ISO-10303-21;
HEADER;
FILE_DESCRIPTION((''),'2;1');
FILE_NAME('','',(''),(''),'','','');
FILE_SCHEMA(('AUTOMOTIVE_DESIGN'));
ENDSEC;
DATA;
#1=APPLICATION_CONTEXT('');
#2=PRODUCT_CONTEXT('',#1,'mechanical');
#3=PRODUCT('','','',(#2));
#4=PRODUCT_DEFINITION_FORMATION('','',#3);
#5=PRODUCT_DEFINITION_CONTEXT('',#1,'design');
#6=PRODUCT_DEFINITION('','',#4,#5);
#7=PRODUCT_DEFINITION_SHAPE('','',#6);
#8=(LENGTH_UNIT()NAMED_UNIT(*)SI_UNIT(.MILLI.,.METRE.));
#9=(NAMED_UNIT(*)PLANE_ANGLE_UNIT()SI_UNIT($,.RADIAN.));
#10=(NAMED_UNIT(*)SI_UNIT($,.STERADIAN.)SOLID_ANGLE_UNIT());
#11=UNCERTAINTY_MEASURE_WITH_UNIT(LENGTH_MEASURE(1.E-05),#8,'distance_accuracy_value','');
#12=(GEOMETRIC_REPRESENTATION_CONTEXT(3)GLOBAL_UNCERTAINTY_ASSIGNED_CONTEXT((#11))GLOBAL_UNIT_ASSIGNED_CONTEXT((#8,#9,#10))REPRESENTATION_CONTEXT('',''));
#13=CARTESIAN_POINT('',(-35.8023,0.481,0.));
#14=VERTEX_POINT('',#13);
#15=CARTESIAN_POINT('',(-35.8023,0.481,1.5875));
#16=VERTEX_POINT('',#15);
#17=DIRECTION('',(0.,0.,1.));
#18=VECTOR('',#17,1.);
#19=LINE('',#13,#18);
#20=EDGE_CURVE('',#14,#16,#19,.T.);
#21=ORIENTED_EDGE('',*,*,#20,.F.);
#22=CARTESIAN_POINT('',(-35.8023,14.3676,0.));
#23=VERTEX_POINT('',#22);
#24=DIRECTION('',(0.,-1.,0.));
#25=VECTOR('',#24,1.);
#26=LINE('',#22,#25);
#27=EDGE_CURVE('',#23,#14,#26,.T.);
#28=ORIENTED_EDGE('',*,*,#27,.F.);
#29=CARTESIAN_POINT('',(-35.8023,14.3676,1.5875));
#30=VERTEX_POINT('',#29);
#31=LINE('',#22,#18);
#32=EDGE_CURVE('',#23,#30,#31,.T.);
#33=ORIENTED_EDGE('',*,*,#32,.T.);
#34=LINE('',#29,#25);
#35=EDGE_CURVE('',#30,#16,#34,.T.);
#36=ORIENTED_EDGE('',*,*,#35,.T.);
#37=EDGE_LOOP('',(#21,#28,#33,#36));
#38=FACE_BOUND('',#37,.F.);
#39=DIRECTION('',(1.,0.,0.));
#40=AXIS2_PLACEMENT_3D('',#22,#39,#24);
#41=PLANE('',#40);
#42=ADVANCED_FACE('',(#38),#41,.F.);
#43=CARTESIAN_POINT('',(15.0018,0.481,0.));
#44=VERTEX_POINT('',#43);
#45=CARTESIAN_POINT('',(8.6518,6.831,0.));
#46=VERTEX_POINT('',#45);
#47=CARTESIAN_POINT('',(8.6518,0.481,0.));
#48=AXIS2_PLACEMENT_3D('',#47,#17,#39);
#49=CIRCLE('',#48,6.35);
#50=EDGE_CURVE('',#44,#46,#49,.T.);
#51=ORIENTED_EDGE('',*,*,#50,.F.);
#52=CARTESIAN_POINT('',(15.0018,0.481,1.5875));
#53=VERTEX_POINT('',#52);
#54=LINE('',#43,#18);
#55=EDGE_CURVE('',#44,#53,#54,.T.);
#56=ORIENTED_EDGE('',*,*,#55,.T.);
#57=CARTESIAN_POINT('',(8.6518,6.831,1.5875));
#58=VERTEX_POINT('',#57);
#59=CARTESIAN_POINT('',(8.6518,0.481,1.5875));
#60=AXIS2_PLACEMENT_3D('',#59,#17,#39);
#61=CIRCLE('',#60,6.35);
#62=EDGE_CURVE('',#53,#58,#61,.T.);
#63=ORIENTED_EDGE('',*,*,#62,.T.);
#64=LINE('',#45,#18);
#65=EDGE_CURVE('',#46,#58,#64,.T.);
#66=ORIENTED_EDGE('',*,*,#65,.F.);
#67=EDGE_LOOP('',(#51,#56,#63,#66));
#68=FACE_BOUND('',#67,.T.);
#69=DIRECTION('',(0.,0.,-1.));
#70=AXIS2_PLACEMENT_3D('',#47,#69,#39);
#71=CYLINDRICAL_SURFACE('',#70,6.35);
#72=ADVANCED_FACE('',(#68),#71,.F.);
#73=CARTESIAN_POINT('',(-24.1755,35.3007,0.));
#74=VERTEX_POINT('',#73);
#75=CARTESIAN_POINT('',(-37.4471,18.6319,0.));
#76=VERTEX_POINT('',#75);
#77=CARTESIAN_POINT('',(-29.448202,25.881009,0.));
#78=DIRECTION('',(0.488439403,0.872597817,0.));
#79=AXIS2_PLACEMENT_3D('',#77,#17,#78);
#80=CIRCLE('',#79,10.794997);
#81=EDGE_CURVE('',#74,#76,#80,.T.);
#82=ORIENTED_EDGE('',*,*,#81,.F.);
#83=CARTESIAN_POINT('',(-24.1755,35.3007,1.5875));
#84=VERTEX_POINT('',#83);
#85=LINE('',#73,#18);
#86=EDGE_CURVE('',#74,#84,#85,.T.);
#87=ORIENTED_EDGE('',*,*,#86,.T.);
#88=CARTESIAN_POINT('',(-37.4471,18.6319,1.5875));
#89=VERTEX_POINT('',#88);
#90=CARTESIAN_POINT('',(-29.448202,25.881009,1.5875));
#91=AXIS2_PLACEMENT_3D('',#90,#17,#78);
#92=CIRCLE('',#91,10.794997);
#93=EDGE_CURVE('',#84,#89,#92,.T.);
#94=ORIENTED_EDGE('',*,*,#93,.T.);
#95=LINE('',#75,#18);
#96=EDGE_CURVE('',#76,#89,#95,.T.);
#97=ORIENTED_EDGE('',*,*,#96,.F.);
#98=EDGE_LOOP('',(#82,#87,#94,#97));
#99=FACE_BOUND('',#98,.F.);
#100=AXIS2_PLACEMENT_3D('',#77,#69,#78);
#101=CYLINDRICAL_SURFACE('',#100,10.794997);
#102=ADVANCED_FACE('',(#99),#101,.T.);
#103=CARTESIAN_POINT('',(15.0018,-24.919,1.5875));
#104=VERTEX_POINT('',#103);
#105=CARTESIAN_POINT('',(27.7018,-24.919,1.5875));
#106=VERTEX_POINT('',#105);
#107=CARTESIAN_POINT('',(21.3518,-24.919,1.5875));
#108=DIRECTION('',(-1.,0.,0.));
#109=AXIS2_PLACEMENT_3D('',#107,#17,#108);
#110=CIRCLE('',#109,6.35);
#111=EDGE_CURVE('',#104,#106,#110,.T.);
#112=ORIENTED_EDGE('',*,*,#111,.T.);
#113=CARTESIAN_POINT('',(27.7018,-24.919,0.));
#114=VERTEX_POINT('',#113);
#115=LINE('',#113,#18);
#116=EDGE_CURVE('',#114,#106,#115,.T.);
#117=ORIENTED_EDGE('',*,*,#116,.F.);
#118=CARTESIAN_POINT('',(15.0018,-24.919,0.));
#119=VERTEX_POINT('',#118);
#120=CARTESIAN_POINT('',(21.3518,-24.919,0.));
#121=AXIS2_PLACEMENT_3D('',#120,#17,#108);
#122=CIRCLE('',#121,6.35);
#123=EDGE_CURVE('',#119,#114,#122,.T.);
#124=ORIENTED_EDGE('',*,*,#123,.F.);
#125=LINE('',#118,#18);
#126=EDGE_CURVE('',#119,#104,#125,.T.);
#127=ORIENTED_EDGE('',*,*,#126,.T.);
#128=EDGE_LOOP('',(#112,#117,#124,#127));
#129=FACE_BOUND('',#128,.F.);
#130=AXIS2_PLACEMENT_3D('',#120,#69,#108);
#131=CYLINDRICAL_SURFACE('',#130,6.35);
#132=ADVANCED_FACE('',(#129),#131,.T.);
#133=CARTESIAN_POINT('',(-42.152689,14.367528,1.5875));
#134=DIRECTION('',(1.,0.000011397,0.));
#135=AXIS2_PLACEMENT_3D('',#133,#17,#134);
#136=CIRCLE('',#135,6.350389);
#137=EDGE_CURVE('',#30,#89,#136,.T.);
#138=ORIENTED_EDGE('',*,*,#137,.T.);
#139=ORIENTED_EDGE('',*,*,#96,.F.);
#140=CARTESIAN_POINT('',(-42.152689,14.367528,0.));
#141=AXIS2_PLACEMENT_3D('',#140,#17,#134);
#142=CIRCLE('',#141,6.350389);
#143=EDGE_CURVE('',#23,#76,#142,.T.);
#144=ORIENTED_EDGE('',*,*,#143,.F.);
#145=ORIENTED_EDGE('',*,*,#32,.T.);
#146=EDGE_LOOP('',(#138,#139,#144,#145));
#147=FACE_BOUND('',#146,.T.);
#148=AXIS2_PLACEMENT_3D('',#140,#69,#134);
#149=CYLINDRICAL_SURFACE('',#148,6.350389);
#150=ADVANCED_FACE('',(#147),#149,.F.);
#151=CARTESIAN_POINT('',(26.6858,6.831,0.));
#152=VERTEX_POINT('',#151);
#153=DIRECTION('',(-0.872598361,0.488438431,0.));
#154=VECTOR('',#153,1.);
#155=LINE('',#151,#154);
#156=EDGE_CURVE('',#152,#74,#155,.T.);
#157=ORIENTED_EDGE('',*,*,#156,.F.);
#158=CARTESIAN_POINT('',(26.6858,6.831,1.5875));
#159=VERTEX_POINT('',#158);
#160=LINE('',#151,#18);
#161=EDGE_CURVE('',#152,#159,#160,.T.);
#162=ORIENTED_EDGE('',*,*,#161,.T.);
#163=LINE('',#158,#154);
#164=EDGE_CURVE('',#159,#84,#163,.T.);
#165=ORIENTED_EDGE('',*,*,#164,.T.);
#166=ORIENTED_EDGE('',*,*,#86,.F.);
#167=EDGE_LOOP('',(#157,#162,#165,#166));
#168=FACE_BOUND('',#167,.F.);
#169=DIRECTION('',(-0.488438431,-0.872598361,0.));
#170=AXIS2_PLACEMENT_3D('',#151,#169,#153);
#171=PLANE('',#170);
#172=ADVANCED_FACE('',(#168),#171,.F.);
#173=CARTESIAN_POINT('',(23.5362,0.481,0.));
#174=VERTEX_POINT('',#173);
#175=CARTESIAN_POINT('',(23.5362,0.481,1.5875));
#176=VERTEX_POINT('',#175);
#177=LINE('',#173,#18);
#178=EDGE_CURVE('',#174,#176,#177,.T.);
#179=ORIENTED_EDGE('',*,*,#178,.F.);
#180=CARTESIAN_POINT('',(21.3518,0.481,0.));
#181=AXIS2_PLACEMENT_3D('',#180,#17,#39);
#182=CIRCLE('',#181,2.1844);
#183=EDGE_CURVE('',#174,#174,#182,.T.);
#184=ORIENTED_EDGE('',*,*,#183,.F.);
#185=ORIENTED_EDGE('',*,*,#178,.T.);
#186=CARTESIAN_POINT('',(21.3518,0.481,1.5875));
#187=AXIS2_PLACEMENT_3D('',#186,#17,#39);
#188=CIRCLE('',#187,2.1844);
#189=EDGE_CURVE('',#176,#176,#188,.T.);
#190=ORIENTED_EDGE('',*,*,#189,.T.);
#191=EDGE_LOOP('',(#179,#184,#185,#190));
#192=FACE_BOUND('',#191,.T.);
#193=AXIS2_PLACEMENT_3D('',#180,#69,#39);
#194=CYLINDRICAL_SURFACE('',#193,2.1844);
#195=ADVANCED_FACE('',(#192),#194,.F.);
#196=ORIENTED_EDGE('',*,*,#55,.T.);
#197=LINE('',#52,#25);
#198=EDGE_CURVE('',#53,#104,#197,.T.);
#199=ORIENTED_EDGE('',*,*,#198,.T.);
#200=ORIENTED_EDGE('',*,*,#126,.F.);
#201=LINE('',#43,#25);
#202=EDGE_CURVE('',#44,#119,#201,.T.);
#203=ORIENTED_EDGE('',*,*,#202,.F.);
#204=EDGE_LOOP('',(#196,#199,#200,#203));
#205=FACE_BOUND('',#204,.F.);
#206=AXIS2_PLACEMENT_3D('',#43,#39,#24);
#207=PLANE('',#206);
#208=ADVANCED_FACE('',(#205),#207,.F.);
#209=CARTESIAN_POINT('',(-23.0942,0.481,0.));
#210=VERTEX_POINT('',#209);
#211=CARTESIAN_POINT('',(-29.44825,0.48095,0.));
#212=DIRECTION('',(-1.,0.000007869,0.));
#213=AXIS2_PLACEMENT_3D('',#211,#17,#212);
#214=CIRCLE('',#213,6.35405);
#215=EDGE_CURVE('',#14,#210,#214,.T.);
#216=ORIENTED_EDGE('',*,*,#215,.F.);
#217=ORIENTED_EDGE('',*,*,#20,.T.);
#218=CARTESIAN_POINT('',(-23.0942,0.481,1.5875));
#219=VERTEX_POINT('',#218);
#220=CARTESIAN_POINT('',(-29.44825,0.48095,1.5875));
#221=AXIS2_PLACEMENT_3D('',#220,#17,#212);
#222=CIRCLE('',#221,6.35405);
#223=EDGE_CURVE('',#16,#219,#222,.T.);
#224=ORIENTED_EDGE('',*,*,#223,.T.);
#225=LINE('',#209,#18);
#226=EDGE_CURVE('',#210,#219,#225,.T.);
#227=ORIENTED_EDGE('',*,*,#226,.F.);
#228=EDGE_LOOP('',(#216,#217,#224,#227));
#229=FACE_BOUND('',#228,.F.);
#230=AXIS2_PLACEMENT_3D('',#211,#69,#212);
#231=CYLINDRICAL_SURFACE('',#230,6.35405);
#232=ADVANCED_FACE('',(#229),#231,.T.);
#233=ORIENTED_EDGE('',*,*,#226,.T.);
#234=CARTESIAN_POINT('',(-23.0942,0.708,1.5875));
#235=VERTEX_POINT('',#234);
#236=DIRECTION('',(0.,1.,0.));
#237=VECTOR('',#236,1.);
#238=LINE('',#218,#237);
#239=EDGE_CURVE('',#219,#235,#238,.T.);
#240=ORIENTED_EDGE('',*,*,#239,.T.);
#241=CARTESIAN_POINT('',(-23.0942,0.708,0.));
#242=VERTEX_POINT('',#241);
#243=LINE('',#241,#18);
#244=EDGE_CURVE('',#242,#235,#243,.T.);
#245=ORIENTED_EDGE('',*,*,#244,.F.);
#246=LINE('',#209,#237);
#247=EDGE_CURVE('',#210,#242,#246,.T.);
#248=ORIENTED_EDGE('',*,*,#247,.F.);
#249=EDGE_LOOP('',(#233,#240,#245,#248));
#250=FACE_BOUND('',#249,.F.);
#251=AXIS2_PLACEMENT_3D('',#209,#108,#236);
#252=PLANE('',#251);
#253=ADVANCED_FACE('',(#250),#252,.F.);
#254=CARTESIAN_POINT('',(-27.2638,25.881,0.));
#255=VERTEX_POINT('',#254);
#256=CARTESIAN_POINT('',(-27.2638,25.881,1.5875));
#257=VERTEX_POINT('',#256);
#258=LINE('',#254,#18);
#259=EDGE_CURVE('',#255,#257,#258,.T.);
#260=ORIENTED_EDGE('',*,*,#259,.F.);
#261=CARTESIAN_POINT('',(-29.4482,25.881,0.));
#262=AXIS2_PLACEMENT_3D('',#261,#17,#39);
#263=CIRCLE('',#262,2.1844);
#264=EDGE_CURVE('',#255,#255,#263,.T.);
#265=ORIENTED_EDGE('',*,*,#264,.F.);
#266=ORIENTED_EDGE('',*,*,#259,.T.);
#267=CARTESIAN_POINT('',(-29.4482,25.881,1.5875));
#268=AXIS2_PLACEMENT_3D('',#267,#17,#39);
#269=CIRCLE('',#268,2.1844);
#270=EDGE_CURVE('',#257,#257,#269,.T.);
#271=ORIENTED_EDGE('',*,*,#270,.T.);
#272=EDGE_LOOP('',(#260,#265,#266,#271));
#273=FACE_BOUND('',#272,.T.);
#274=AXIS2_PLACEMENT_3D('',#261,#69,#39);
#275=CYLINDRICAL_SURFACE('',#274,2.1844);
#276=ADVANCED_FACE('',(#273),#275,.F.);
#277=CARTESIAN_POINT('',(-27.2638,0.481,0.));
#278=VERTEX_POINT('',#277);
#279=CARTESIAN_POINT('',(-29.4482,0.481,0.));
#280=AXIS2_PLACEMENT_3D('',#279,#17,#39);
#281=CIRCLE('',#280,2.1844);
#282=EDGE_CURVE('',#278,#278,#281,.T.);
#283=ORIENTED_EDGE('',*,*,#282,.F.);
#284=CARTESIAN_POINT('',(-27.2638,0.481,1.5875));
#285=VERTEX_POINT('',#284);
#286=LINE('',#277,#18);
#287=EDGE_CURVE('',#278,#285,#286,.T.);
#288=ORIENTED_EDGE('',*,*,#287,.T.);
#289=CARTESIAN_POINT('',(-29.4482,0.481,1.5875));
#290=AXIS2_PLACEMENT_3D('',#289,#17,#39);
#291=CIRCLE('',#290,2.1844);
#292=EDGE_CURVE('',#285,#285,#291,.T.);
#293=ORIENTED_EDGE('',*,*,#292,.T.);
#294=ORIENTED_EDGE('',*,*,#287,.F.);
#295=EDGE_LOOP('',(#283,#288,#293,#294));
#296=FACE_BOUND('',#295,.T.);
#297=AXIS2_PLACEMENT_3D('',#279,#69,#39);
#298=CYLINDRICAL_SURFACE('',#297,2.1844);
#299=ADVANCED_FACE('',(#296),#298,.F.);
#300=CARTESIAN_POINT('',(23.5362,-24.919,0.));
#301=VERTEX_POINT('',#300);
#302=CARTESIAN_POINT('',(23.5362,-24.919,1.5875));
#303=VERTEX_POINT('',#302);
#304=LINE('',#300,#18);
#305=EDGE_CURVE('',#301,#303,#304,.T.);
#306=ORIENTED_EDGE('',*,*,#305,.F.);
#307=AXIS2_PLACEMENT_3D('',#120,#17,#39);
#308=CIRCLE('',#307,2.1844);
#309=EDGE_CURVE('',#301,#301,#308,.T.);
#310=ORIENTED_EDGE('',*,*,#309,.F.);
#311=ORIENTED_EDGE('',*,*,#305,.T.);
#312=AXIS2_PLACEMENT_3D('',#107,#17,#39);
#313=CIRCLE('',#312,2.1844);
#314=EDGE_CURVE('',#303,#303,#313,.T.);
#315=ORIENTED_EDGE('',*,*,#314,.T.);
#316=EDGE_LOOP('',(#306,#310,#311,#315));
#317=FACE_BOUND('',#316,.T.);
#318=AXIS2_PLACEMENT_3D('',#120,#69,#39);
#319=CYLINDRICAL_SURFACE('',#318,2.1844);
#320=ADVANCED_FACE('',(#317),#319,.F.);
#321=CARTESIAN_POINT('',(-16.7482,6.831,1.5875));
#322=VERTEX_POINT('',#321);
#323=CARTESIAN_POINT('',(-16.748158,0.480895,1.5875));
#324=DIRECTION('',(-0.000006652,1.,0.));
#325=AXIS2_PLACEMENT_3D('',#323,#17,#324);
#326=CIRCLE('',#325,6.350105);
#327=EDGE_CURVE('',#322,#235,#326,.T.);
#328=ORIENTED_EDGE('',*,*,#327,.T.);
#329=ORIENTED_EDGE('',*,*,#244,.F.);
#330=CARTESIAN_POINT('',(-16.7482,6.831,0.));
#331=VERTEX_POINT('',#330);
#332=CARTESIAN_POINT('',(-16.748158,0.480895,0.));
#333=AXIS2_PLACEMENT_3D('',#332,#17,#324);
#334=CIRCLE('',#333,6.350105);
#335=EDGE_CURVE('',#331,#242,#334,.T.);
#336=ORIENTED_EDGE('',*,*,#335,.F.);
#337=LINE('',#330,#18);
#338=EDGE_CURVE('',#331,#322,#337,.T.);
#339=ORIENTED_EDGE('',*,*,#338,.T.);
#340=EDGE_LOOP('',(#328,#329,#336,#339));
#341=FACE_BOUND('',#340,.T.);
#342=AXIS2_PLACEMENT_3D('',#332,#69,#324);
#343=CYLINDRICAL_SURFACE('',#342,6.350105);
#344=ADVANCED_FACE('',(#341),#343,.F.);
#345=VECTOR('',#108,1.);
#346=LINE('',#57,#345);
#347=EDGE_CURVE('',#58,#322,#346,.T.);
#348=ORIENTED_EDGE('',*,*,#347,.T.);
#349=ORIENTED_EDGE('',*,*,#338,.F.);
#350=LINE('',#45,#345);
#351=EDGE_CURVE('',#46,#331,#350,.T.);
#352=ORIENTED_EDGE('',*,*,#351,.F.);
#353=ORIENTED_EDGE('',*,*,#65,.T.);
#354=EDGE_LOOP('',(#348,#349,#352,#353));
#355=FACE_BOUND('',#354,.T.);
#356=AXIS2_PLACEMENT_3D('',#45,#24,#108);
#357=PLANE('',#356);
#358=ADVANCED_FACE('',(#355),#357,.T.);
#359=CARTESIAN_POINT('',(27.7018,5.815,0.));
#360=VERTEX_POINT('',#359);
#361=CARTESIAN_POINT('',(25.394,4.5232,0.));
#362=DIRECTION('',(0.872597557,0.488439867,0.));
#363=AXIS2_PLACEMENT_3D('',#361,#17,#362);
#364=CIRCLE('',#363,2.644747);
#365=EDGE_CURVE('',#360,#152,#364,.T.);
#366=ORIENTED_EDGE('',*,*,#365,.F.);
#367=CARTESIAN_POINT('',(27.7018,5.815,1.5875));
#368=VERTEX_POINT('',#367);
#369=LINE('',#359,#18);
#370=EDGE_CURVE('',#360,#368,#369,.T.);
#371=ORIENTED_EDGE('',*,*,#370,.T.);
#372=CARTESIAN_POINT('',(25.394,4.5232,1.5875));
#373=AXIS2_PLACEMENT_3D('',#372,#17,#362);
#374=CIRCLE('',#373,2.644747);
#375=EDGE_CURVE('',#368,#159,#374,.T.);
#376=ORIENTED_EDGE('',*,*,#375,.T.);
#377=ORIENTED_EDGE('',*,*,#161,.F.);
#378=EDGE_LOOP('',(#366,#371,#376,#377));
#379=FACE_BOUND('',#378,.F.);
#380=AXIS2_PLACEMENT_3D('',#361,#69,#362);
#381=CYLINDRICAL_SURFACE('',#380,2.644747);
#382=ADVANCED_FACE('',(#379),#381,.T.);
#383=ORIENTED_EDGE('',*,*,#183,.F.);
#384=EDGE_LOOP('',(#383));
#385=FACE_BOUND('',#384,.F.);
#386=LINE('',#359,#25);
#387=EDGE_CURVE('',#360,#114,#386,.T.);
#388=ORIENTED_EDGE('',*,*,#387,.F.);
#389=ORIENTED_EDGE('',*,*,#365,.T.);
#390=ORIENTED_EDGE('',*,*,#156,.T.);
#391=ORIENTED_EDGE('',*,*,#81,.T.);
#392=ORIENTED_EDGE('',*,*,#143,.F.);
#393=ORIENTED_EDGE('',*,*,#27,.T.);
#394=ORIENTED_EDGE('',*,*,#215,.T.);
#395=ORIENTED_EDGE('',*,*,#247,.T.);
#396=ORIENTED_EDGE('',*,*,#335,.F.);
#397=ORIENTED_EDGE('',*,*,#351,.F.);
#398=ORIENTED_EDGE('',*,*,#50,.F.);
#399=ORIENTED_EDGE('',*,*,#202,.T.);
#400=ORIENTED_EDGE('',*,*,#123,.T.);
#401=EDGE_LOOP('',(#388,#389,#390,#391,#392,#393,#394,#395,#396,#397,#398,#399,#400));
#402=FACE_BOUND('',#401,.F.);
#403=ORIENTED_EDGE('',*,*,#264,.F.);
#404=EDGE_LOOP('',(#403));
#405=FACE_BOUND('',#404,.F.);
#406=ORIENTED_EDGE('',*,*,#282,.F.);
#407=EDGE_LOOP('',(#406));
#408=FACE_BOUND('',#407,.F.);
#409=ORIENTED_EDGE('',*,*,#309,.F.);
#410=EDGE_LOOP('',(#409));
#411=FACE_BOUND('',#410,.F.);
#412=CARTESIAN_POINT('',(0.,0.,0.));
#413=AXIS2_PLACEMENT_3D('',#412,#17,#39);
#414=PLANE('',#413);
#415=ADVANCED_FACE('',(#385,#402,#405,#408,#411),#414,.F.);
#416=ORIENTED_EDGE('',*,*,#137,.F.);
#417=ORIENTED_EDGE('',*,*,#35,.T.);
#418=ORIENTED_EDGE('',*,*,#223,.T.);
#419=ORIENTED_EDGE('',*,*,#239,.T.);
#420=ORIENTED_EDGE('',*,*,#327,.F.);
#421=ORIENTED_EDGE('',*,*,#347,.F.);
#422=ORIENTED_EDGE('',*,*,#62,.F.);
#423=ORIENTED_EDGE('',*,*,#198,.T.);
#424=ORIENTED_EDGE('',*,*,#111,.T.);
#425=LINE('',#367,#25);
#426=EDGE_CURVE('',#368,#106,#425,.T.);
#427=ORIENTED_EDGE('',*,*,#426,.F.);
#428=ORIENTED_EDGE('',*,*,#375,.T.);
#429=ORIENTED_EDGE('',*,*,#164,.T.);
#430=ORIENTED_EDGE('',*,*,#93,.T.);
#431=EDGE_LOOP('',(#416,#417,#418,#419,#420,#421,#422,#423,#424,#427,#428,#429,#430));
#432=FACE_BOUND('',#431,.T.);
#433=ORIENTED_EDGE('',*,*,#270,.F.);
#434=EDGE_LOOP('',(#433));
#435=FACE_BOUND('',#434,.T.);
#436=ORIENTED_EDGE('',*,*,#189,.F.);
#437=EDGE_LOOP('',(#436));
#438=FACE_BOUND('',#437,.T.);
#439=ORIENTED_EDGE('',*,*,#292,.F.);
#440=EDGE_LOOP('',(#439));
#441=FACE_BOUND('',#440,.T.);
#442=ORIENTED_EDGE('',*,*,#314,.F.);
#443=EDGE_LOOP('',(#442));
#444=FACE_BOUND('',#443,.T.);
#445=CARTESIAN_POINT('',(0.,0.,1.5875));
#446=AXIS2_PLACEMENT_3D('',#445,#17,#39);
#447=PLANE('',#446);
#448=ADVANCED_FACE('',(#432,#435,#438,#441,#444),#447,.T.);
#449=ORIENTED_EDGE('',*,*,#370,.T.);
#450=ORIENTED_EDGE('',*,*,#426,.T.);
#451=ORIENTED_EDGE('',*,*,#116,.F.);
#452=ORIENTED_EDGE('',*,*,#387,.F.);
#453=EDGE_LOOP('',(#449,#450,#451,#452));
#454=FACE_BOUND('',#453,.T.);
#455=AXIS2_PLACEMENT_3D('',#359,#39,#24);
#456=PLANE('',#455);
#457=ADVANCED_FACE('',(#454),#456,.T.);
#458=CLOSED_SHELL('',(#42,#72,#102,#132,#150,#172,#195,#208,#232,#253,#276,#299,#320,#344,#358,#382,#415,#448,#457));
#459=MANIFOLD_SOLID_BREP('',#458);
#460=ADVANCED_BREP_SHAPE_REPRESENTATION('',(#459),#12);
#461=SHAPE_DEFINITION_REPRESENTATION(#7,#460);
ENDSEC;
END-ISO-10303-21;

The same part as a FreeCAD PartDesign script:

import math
import FreeCAD as App
import Part
import Sketcher

V = App.Vector
Q = App.Units.Quantity

doc = App.newDocument("Part")
body = doc.addObject("PartDesign::Body", "Body")

# Sketch on XY plane
sketch1 = doc.addObject("Sketcher::SketchObject", "Sketch")
body.addObject(sketch1)
sketch1.AttachmentSupport = (doc.XY_Plane, [""])
sketch1.MapMode = "FlatFace"
sketch1.addGeometry([
    Part.ArcOfCircle(Part.Circle(V(25.39, 4.52, 0), V(0, 0, 1), 2.64), math.radians(29), math.radians(61)),  # 0
    Part.LineSegment(V(26.69, 6.83, 0), V(-24.18, 35.3, 0)),  # 1
    Part.ArcOfCircle(Part.Circle(V(-29.45, 25.88, 0), V(0, 0, 1), 10.8), math.radians(61), math.radians(222)),  # 2
    Part.ArcOfCircle(Part.Circle(V(-42.15, 14.37, 0), V(0, 0, 1), 6.35), math.radians(0), math.radians(42)),  # 3
    Part.LineSegment(V(-35.8, 14.37, 0), V(-35.8, 0.48, 0)),  # 4
    Part.ArcOfCircle(Part.Circle(V(-29.45, 0.48, 0), V(0, 0, 1), 6.35), math.radians(180), math.radians(360)),  # 5
    Part.LineSegment(V(-23.09, 0.48, 0), V(-23.09, 0.71, 0)),  # 6
    Part.ArcOfCircle(Part.Circle(V(-16.75, 0.48, 0), V(0, 0, 1), 6.35), math.radians(90), math.radians(178)),  # 7
    Part.LineSegment(V(-16.75, 6.83, 0), V(8.65, 6.83, 0)),  # 8
    Part.ArcOfCircle(Part.Circle(V(8.65, 0.48, 0), V(0, 0, 1), 6.35), math.radians(0), math.radians(90)),  # 9
    Part.LineSegment(V(15, 0.48, 0), V(15, -24.92, 0)),  # 10
    Part.ArcOfCircle(Part.Circle(V(21.35, -24.92, 0), V(0, 0, 1), 6.35), math.radians(180), math.radians(360)),  # 11
    Part.LineSegment(V(27.7, -24.92, 0), V(27.7, 5.82, 0)),  # 12
    Part.Circle(V(-29.45, 0.48, 0), V(0, 0, 1), 2.18),  # 13
    Part.Circle(V(21.35, -24.92, 0), V(0, 0, 1), 2.18),  # 14
    Part.Circle(V(21.35, 0.48, 0), V(0, 0, 1), 2.18),  # 15
    Part.Circle(V(-29.45, 25.88, 0), V(0, 0, 1), 2.18),  # 16
], False)
sketch1.addConstraint([
    Sketcher.Constraint("Tangent", 0, 2, 1, 1),
    Sketcher.Constraint("Tangent", 1, 2, 2, 1),
    Sketcher.Constraint("Tangent", 2, 2, 3, 2),
    Sketcher.Constraint("Tangent", 3, 1, 4, 1),
    Sketcher.Constraint("Tangent", 4, 2, 5, 1),
    Sketcher.Constraint("Tangent", 5, 2, 6, 1),
    Sketcher.Constraint("Coincident", 6, 2, 7, 2),
    Sketcher.Constraint("Tangent", 7, 1, 8, 1),
    Sketcher.Constraint("Tangent", 8, 2, 9, 2),
    Sketcher.Constraint("Tangent", 9, 1, 10, 1),
    Sketcher.Constraint("Tangent", 10, 2, 11, 1),
    Sketcher.Constraint("Tangent", 11, 2, 12, 1),
    Sketcher.Constraint("Coincident", 12, 2, 0, 1),
    Sketcher.Constraint("Vertical", 4),
    Sketcher.Constraint("Vertical", 6),
    Sketcher.Constraint("Horizontal", 8),
    Sketcher.Constraint("Vertical", 10),
    Sketcher.Constraint("Vertical", 12),
    Sketcher.Constraint("Coincident", 13, 3, 5, 3),
    Sketcher.Constraint("Coincident", 14, 3, 11, 3),
    Sketcher.Constraint("Coincident", 16, 3, 2, 3),
    Sketcher.Constraint("Equal", 3, 7),
    Sketcher.Constraint("Equal", 7, 9),
    Sketcher.Constraint("Equal", 9, 11),
    Sketcher.Constraint("Equal", 13, 14),
    Sketcher.Constraint("Equal", 14, 15),
    Sketcher.Constraint("Equal", 15, 16),
    Sketcher.Constraint("Horizontal", 5, 3, 7, 3),
    Sketcher.Constraint("Horizontal", 13, 3, 15, 3),
    Sketcher.Constraint("Horizontal", 0, 2, 7, 1),
    Sketcher.Constraint("Vertical", 2, 3, 5, 3),
    Sketcher.Constraint("Vertical", 14, 3, 15, 3),
    Sketcher.Constraint("Equal", 8, 10),
    Sketcher.Constraint("Radius", 3, Q("0.25 in")),
    Sketcher.Constraint("DistanceX", 8, 1, 8, 2, Q("1 in")),
    Sketcher.Constraint("Diameter", 13, Q("0.172 in")),
    Sketcher.Constraint("Radius", 2, Q("0.425 in")),
    Sketcher.Constraint("DistanceY", 5, 3, 2, 3, Q("1 in")),
    Sketcher.Constraint("DistanceX", 5, 3, 11, 3, Q("2 in")),
    Sketcher.Constraint("DistanceY", 12, 1, 12, 2, Q("1.21 in")),
    Sketcher.Constraint("Radius", 0, 2.6447),
    Sketcher.Constraint("Radius", 5, 6.354),
    Sketcher.Constraint("DistanceX", 1, 2, -1, 1, Q("0.9518 in")),
    Sketcher.Constraint("DistanceY", -1, 1, 1, 2, Q("1.3898 in")),
])
pad1 = doc.addObject("PartDesign::Pad", "Pad")
body.addObject(pad1)
pad1.Profile = sketch1
pad1.Length = Q("0.0625 in")

doc.recompute()
